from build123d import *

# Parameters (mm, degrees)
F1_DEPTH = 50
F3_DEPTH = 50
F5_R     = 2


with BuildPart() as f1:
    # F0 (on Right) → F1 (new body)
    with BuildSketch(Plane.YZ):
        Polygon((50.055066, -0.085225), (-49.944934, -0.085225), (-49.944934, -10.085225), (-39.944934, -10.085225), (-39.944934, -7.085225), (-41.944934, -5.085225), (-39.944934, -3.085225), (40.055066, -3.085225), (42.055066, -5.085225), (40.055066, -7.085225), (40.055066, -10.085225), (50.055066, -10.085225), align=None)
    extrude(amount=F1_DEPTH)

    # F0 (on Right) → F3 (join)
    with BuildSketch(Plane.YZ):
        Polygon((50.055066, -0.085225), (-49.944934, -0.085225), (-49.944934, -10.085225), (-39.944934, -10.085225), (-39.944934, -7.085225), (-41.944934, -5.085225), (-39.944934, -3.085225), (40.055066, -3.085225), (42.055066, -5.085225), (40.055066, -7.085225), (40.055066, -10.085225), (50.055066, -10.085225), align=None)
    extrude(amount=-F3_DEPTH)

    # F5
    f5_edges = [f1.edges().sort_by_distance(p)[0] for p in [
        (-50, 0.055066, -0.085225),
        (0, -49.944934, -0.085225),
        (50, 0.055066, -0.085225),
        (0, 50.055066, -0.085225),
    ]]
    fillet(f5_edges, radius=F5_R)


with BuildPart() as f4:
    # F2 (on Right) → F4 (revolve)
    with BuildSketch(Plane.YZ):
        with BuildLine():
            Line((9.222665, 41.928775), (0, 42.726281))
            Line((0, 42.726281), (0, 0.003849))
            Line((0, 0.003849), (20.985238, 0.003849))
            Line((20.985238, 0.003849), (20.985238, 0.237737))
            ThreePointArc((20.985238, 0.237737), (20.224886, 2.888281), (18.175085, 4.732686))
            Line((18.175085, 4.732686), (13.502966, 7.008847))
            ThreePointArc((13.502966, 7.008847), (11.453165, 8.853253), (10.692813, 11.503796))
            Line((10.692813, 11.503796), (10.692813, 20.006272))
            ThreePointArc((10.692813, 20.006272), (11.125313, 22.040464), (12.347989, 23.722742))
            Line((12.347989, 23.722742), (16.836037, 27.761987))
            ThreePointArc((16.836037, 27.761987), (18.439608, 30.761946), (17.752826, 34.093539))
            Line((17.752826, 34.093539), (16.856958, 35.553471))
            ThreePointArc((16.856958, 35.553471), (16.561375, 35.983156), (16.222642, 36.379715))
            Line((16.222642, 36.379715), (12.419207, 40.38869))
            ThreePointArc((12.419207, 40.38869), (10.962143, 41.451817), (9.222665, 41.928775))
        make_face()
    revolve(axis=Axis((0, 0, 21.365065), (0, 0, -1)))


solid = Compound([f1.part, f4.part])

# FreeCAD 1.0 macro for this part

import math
import FreeCAD as App
import Part
import Sketcher

V = App.Vector


def edges_at(feature, points):
    """Names of the edges that pass closest to the given points."""
    edges = feature.Shape.Edges
    near = lambda p: min(range(len(edges)), key=lambda i: edges[i].distToShape(Part.Vertex(*p))[0])
    return sorted({f"Edge{near(p) + 1}" for p in points})


def add_polygon(sketch, points):
    """Adds a closed chain of lines whose ends are joined by coincident constraints."""
    first, n = sketch.GeometryCount, len(points)
    for a, b in zip(points, points[1:] + points[:1]):
        sketch.addGeometry(Part.LineSegment(App.Vector(*a, 0), App.Vector(*b, 0)), False)
    for i in range(n):
        sketch.addConstraint(Sketcher.Constraint("Coincident", first + i, 2, first + (i + 1) % n, 1))

doc = App.newDocument("Part")
body = doc.addObject("PartDesign::Body", "Body")

# Sketch on YZ plane
sketch1 = body.newObject("Sketcher::SketchObject", "Sketch")
sketch1.AttachmentSupport = (doc.getObject("YZ_Plane"), [""])
sketch1.MapMode = "FlatFace"
add_polygon(sketch1, [(50.1, -0.1), (-49.9, -0.1), (-49.9, -10.1), (-39.9, -10.1), (-39.9, -7.1), (-41.9, -5.1), (-39.9, -3.1), (40.1, -3.1), (42.1, -5.1), (40.1, -7.1), (40.1, -10.1), (50.1, -10.1)])  # lines 0-11
sketch1.addConstraint(Sketcher.Constraint("Horizontal", 0))
sketch1.addConstraint(Sketcher.Constraint("Vertical", 1))
sketch1.addConstraint(Sketcher.Constraint("Horizontal", 2))
sketch1.addConstraint(Sketcher.Constraint("Vertical", 3))
sketch1.addConstraint(Sketcher.Constraint("Horizontal", 6))
sketch1.addConstraint(Sketcher.Constraint("Vertical", 9))
sketch1.addConstraint(Sketcher.Constraint("Horizontal", 10))
sketch1.addConstraint(Sketcher.Constraint("Vertical", 11))
sketch1.addConstraint(Sketcher.Constraint("Perpendicular", 4, 5))
sketch1.addConstraint(Sketcher.Constraint("Perpendicular", 5, 7))
sketch1.addConstraint(Sketcher.Constraint("Perpendicular", 7, 8))
sketch1.addConstraint(Sketcher.Constraint("Horizontal", 4, 2, 7, 2))
sketch1.addConstraint(Sketcher.Constraint("Horizontal", 3, 2, 8, 2))
sketch1.addConstraint(Sketcher.Constraint("Horizontal", 2, 2, 9, 2))
sketch1.addConstraint(Sketcher.Constraint("Vertical", 3, 2, 5, 2))
sketch1.addConstraint(Sketcher.Constraint("Vertical", 6, 2, 8, 2))
sketch1.addConstraint(Sketcher.Constraint("Equal", 2, 10))
sketch1.addConstraint(Sketcher.Constraint("Equal", 10, 1))
sketch1.addConstraint(Sketcher.Constraint("DistanceX", 0, 2, 0, 1, 100.0))
sketch1.addConstraint(Sketcher.Constraint("DistanceX", 2, 1, 2, 2, 10.0))
sketch1.addConstraint(Sketcher.Constraint("DistanceY", 3, 1, 3, 2, 3.0))
sketch1.addConstraint(Sketcher.Constraint("DistanceX", 4, 2, 3, 2, 2.0))
sketch1.addConstraint(Sketcher.Constraint("DistanceX", 0, 2, -1, 1, 49.944934))
sketch1.addConstraint(Sketcher.Constraint("DistanceY", 0, 2, -1, 1, 0.085225))
pad1 = body.newObject("PartDesign::Pad", "Pad")
pad1.Profile = sketch1
pad1.Length = 50

# Sketch on YZ plane
sketch2 = body.newObject("Sketcher::SketchObject", "Sketch001")
sketch2.AttachmentSupport = (doc.getObject("YZ_Plane"), [""])
sketch2.MapMode = "FlatFace"
add_polygon(sketch2, [(50.1, -0.1), (-49.9, -0.1), (-49.9, -10.1), (-39.9, -10.1), (-39.9, -7.1), (-41.9, -5.1), (-39.9, -3.1), (40.1, -3.1), (42.1, -5.1), (40.1, -7.1), (40.1, -10.1), (50.1, -10.1)])  # lines 0-11
sketch2.addConstraint(Sketcher.Constraint("Horizontal", 0))
sketch2.addConstraint(Sketcher.Constraint("Vertical", 1))
sketch2.addConstraint(Sketcher.Constraint("Horizontal", 2))
sketch2.addConstraint(Sketcher.Constraint("Vertical", 3))
sketch2.addConstraint(Sketcher.Constraint("Horizontal", 6))
sketch2.addConstraint(Sketcher.Constraint("Vertical", 9))
sketch2.addConstraint(Sketcher.Constraint("Horizontal", 10))
sketch2.addConstraint(Sketcher.Constraint("Vertical", 11))
sketch2.addConstraint(Sketcher.Constraint("Perpendicular", 4, 5))
sketch2.addConstraint(Sketcher.Constraint("Perpendicular", 5, 7))
sketch2.addConstraint(Sketcher.Constraint("Perpendicular", 7, 8))
sketch2.addConstraint(Sketcher.Constraint("Horizontal", 4, 2, 7, 2))
sketch2.addConstraint(Sketcher.Constraint("Horizontal", 3, 2, 8, 2))
sketch2.addConstraint(Sketcher.Constraint("Horizontal", 2, 2, 9, 2))
sketch2.addConstraint(Sketcher.Constraint("Vertical", 3, 2, 5, 2))
sketch2.addConstraint(Sketcher.Constraint("Vertical", 6, 2, 8, 2))
sketch2.addConstraint(Sketcher.Constraint("Equal", 2, 10))
sketch2.addConstraint(Sketcher.Constraint("Equal", 10, 1))
sketch2.addConstraint(Sketcher.Constraint("DistanceX", 0, 2, 0, 1, 100.0))
sketch2.addConstraint(Sketcher.Constraint("DistanceX", 2, 1, 2, 2, 10.0))
sketch2.addConstraint(Sketcher.Constraint("DistanceY", 3, 1, 3, 2, 3.0))
sketch2.addConstraint(Sketcher.Constraint("DistanceX", 4, 2, 3, 2, 2.0))
sketch2.addConstraint(Sketcher.Constraint("DistanceX", 0, 2, -1, 1, 49.944934))
sketch2.addConstraint(Sketcher.Constraint("DistanceY", 0, 2, -1, 1, 0.085225))
pad2 = body.newObject("PartDesign::Pad", "Pad001")
pad2.Profile = sketch2
pad2.Length = 50
pad2.Reversed = True
doc.recompute()

fillet = body.newObject("PartDesign::Fillet", "Fillet")
fillet.Base = (pad2, edges_at(pad2, [
    (-50, 0.055, -0.085),
    (0, -49.945, -0.085),
    (50, 0.055, -0.085),
    (0, 50.055, -0.085),
]))
fillet.Radius = 2
body2 = doc.addObject("PartDesign::Body", "Body001")

# Sketch on YZ plane
sketch3 = body2.newObject("Sketcher::SketchObject", "Sketch002")
sketch3.AttachmentSupport = (doc.getObject("YZ_Plane001"), [""])
sketch3.MapMode = "FlatFace"
sketch3.addGeometry(Part.LineSegment(V(9.22, 41.93, 0), V(0, 42.73, 0)), False)
sketch3.addGeometry(Part.LineSegment(V(0, 42.73, 0), V(0, 0, 0)), False)
sketch3.addGeometry(Part.LineSegment(V(0, 0, 0), V(20.99, 0, 0)), False)
sketch3.addGeometry(Part.LineSegment(V(20.99, 0, 0), V(20.99, 0.24, 0)), False)
sketch3.addGeometry(Part.ArcOfCircle(Part.Circle(V(15.99, 0.24, 0), V(0, 0, 1), 5), math.radians(0), math.radians(64)), False)
sketch3.addGeometry(Part.LineSegment(V(18.18, 4.73, 0), V(13.5, 7.01, 0)), False)
sketch3.addGeometry(Part.ArcOfCircle(Part.Circle(V(15.69, 11.5, 0), V(0, 0, 1), 5), math.radians(-180), math.radians(-116)), False)
sketch3.addGeometry(Part.LineSegment(V(10.69, 11.5, 0), V(10.69, 20.01, 0)), False)
sketch3.addGeometry(Part.ArcOfCircle(Part.Circle(V(15.69, 20.01, 0), V(0, 0, 1), 5), math.radians(132), math.radians(180)), False)
sketch3.addGeometry(Part.LineSegment(V(12.35, 23.72, 0), V(16.84, 27.76, 0)), False)
sketch3.addGeometry(Part.ArcOfCircle(Part.Circle(V(13.49, 31.48, 0), V(0, 0, 1), 5), math.radians(-48), math.radians(32)), False)
sketch3.addGeometry(Part.LineSegment(V(17.75, 34.09, 0), V(16.86, 35.55, 0)), False)
sketch3.addGeometry(Part.ArcOfCircle(Part.Circle(V(12.6, 32.94, 0), V(0, 0, 1), 5), math.radians(31.53), math.radians(43.49)), False)
sketch3.addGeometry(Part.LineSegment(V(16.22, 36.38, 0), V(12.42, 40.39, 0)), False)
sketch3.addGeometry(Part.ArcOfCircle(Part.Circle(V(8.79, 36.95, 0), V(0, 0, 1), 5), math.radians(43), math.radians(85)), False)
sketch3.addConstraint(Sketcher.Constraint("Coincident", 0, 2, 1, 1))
sketch3.addConstraint(Sketcher.Constraint("Coincident", 1, 2, 2, 1))
sketch3.addConstraint(Sketcher.Constraint("Coincident", 2, 2, 3, 1))
sketch3.addConstraint(Sketcher.Constraint("Tangent", 3, 2, 4, 1))
sketch3.addConstraint(Sketcher.Constraint("Tangent", 4, 2, 5, 1))
sketch3.addConstraint(Sketcher.Constraint("Tangent", 5, 2, 6, 2))
sketch3.addConstraint(Sketcher.Constraint("Tangent", 6, 1, 7, 1))
sketch3.addConstraint(Sketcher.Constraint("Tangent", 7, 2, 8, 2))
sketch3.addConstraint(Sketcher.Constraint("Tangent", 8, 1, 9, 1))
sketch3.addConstraint(Sketcher.Constraint("Tangent", 9, 2, 10, 1))
sketch3.addConstraint(Sketcher.Constraint("Tangent", 10, 2, 11, 1))
sketch3.addConstraint(Sketcher.Constraint("Tangent", 11, 2, 12, 1))
sketch3.addConstraint(Sketcher.Constraint("Coincident", 12, 2, 13, 1))
sketch3.addConstraint(Sketcher.Constraint("Tangent", 13, 2, 14, 1))
sketch3.addConstraint(Sketcher.Constraint("Tangent", 14, 2, 0, 1))
sketch3.addConstraint(Sketcher.Constraint("Vertical", 1))
sketch3.addConstraint(Sketcher.Constraint("Horizontal", 2))
sketch3.addConstraint(Sketcher.Constraint("Vertical", 3))
sketch3.addConstraint(Sketcher.Constraint("Vertical", 7))
sketch3.addConstraint(Sketcher.Constraint("Equal", 4, 10))
sketch3.addConstraint(Sketcher.Constraint("Equal", 10, 14))
sketch3.addConstraint(Sketcher.Constraint("PointOnObject", 0, 2, -2))
sketch3.addConstraint(Sketcher.Constraint("Radius", 4, 5.0))
sketch3.addConstraint(Sketcher.Constraint("Radius", 6, 5.000003))
sketch3.addConstraint(Sketcher.Constraint("Radius", 8, 5.000005))
sketch3.addConstraint(Sketcher.Constraint("Radius", 12, 5.000067))
sketch3.addConstraint(Sketcher.Constraint("DistanceY", 2, 2, 5, 2, 7.004998))
sketch3.addConstraint(Sketcher.Constraint("DistanceY", 1, 2, 1, 1, 42.722432))
sketch3.addConstraint(Sketcher.Constraint("DistanceY", 3, 1, 3, 2, 0.233888))
sketch3.addConstraint(Sketcher.Constraint("DistanceX", 10, 3, 6, 3, 2.201601))
sketch3.addConstraint(Sketcher.Constraint("DistanceX", 8, 1, 12, 3, 0.2473))
sketch3.addConstraint(Sketcher.Constraint("Distance", 0, 9.257082))
sketch3.addConstraint(Sketcher.Constraint("Distance", 13, 5.52612))
sketch3.addConstraint(Sketcher.Constraint("DistanceX", 2, 1, 2, 2, 20.985238))
sketch3.addConstraint(Sketcher.Constraint("DistanceY", 7, 1, 7, 2, 8.502476))
sketch3.addConstraint(Sketcher.Constraint("DistanceX", -1, 1, 8, 3, 15.692818))
sketch3.addConstraint(Sketcher.Constraint("DistanceY", -1, 1, 8, 3, 20.006269))
sketch3.addConstraint(Sketcher.Constraint("DistanceX", -1, 1, 12, 3, 12.595289))
sketch3.addConstraint(Sketcher.Constraint("DistanceY", -1, 1, 12, 3, 32.938352))
sketch3.addConstraint(Sketcher.Constraint("DistanceX", -1, 1, 14, 3, 8.791911))
revolution = body2.newObject("PartDesign::Revolution", "Revolution")
revolution.Profile = sketch3
revolution.ReferenceAxis = (sketch3, ["V_Axis"])
revolution.Angle = 360

doc.recompute()
